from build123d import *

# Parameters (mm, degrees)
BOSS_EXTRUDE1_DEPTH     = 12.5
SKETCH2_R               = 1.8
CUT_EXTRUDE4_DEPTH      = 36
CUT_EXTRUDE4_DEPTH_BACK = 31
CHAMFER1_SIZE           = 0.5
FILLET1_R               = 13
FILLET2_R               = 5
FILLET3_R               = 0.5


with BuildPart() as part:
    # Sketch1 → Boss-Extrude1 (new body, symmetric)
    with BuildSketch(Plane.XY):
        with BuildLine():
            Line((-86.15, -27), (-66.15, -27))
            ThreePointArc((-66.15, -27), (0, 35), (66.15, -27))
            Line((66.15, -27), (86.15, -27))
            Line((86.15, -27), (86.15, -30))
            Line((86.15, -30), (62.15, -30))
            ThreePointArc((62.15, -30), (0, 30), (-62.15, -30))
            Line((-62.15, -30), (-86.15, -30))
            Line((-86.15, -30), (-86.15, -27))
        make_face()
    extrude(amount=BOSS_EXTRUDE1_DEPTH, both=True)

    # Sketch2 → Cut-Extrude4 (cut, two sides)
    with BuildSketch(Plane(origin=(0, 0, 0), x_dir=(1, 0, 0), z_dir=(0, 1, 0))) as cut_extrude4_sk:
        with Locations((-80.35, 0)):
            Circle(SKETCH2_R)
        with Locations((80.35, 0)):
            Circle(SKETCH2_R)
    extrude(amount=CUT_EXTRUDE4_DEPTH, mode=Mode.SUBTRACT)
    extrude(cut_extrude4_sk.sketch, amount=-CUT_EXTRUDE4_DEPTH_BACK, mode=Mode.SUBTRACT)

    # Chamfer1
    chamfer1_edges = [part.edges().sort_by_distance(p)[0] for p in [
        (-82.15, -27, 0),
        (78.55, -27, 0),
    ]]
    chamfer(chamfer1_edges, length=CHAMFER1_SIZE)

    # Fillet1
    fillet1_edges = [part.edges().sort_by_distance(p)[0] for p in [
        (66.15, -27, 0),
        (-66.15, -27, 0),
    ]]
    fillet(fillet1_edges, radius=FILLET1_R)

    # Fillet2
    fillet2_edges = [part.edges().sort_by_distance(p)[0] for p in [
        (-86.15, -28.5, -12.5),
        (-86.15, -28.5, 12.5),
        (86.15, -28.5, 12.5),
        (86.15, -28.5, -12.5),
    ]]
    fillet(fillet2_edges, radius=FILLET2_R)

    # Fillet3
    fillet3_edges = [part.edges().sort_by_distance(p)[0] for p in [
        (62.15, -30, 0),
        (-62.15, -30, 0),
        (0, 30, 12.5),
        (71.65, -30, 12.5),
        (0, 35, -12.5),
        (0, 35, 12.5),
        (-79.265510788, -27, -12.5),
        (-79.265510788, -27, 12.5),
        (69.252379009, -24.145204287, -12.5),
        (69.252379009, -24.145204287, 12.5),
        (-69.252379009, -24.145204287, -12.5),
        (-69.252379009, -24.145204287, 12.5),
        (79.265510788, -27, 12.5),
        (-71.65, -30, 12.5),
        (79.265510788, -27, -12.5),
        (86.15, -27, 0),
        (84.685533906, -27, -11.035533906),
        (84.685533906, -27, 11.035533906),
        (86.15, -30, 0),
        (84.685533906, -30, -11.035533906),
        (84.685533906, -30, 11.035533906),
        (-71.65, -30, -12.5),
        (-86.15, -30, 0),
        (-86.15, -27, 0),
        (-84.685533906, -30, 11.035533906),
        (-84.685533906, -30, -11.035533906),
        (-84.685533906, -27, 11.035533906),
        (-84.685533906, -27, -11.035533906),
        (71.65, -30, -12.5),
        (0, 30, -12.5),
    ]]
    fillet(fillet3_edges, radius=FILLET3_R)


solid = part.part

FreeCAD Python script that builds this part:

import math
import FreeCAD as App
import Part
import Sketcher

V = App.Vector


def edges_at(feature, points):
    """Names of the edges that pass closest to the given points."""
    edges = feature.Shape.Edges
    near = lambda p: min(range(len(edges)), key=lambda i: edges[i].distToShape(Part.Vertex(*p))[0])
    return sorted({f"Edge{near(p) + 1}" for p in points})

doc = App.newDocument("Part")
body = doc.addObject("PartDesign::Body", "Body")

# Sketch on XY plane
sketch1 = doc.addObject("Sketcher::SketchObject", "Sketch")
body.addObject(sketch1)
sketch1.AttachmentSupport = (doc.XY_Plane, [""])
sketch1.MapMode = "FlatFace"
sketch1.addGeometry([
    Part.LineSegment(V(-66.15, -27, 0), V(-86.15, -27, 0)),  # 0
    Part.LineSegment(V(-86.15, -27, 0), V(-86.15, -30, 0)),  # 1
    Part.LineSegment(V(-86.15, -30, 0), V(-62.15, -30, 0)),  # 2
    Part.ArcOfCircle(Part.Circle(V(0, -32.188521, 0), V(0, 0, 1), 62.188521), math.radians(2.016753), math.radians(177.983247)),  # 3
    Part.LineSegment(V(62.15, -30, 0), V(86.15, -30, 0)),  # 4
    Part.LineSegment(V(86.15, -30, 0), V(86.15, -27, 0)),  # 5
    Part.LineSegment(V(86.15, -27, 0), V(66.15, -27, 0)),  # 6
    Part.ArcOfCircle(Part.Circle(V(0, -31.288891, 0), V(0, 0, 1), 66.288891), math.radians(3.709628), math.radians(176.290372)),  # 7
], False)
sketch1.addConstraint([
    Sketcher.Constraint("Coincident", 0, 2, 1, 1),
    Sketcher.Constraint("Coincident", 1, 2, 2, 1),
    Sketcher.Constraint("Coincident", 2, 2, 3, 2),
    Sketcher.Constraint("Coincident", 3, 1, 4, 1),
    Sketcher.Constraint("Coincident", 4, 2, 5, 1),
    Sketcher.Constraint("Coincident", 5, 2, 6, 1),
    Sketcher.Constraint("Coincident", 6, 2, 7, 1),
    Sketcher.Constraint("Coincident", 7, 2, 0, 1),
    Sketcher.Constraint("Horizontal", 0),
    Sketcher.Constraint("Vertical", 1),
    Sketcher.Constraint("Horizontal", 2),
    Sketcher.Constraint("Horizontal", 4),
    Sketcher.Constraint("Vertical", 5),
    Sketcher.Constraint("Horizontal", 6),
    Sketcher.Constraint("Symmetric", 2, 2, 3, 1, -2),
    Sketcher.Constraint("Symmetric", 0, 2, 5, 2, -2),
    Sketcher.Constraint("PointOnObject", 7, 3, -2),
    Sketcher.Constraint("DistanceX", 0, 2, 0, 1, 20.0),
    Sketcher.Constraint("DistanceX", 2, 1, 2, 2, 24.0),
    Sketcher.Constraint("DistanceY", 1, 2, 1, 1, 3.0),
    Sketcher.Constraint("DistanceY", 0, 2, -1, 1, 27.0),
    Sketcher.Constraint("DistanceX", 2, 2, 3, 1, 124.3),
    Sketcher.Constraint("Radius", 3, 62.188521),
    Sketcher.Constraint("Radius", 7, 66.288891),
])
pad1 = doc.addObject("PartDesign::Pad", "Pad")
body.addObject(pad1)
pad1.Profile = sketch1
pad1.Length = 25
pad1.Midplane = True

# Sketch on XZ plane
sketch2 = doc.addObject("Sketcher::SketchObject", "Sketch001")
body.addObject(sketch2)
sketch2.AttachmentSupport = (doc.XZ_Plane, [""])
sketch2.MapMode = "FlatFace"
sketch2.addGeometry([
    Part.Circle(V(-80.35, 0, 0), V(0, 0, 1), 1.8),
    Part.Circle(V(80.35, 0, 0), V(0, 0, 1), 1.8),
], False)
sketch2.addConstraint([
    Sketcher.Constraint("Equal", 0, 1),
    Sketcher.Constraint("Symmetric", 0, 3, 1, 3, -1, 1),
    Sketcher.Constraint("PointOnObject", 0, 3, -1),
    Sketcher.Constraint("Diameter", 0, 3.6),
    Sketcher.Constraint("DistanceX", 0, 3, 1, 3, 160.7),
])
pocket1 = doc.addObject("PartDesign::Pocket", "Pocket")
body.addObject(pocket1)
pocket1.Profile = sketch2
pocket1.Type = "ThroughAll"
pocket1.Midplane = True
doc.recompute()

chamfer = doc.addObject("PartDesign::Chamfer", "Chamfer")
body.addObject(chamfer)
chamfer.Base = (pocket1, edges_at(pocket1, [(-82.15, -27, 0), (78.55, -27, 0)]))
chamfer.Size = 0.5
doc.recompute()

fillet = doc.addObject("PartDesign::Fillet", "Fillet")
body.addObject(fillet)
fillet.Base = (chamfer, edges_at(chamfer, [(66.15, -27, 0), (-66.15, -27, 0)]))
fillet.Radius = 13
doc.recompute()

fillet2 = doc.addObject("PartDesign::Fillet", "Fillet001")
body.addObject(fillet2)
fillet2.Base = (fillet, edges_at(fillet, [
    (-86.15, -28.5, -12.5),
    (-86.15, -28.5, 12.5),
    (86.15, -28.5, 12.5),
    (86.15, -28.5, -12.5),
]))
fillet2.Radius = 5
doc.recompute()

fillet3 = doc.addObject("PartDesign::Fillet", "Fillet002")
body.addObject(fillet3)
fillet3.Base = (fillet2, edges_at(fillet2, [
    (62.15, -30, 0),
    (-62.15, -30, 0),
    (0, 30, 12.5),
    (71.65, -30, 12.5),
    (0, 35, -12.5),
    (0, 35, 12.5),
    (-79.266, -27, -12.5),
    (-79.266, -27, 12.5),
    (69.252, -24.145, -12.5),
    (69.252, -24.145, 12.5),
    (-69.252, -24.145, -12.5),
    (-69.252, -24.145, 12.5),
    (79.266, -27, 12.5),
    (-71.65, -30, 12.5),
    (79.266, -27, -12.5),
    (86.15, -27, 0),
    (84.686, -27, -11.036),
    (84.686, -27, 11.036),
    (86.15, -30, 0),
    (84.686, -30, -11.036),
    (84.686, -30, 11.036),
    (-71.65, -30, -12.5),
    (-86.15, -30, 0),
    (-86.15, -27, 0),
    (-84.686, -30, 11.036),
    (-84.686, -30, -11.036),
    (-84.686, -27, 11.036),
    (-84.686, -27, -11.036),
    (71.65, -30, -12.5),
    (0, 30, -12.5),
]))
fillet3.Radius = 0.5

doc.recompute()
